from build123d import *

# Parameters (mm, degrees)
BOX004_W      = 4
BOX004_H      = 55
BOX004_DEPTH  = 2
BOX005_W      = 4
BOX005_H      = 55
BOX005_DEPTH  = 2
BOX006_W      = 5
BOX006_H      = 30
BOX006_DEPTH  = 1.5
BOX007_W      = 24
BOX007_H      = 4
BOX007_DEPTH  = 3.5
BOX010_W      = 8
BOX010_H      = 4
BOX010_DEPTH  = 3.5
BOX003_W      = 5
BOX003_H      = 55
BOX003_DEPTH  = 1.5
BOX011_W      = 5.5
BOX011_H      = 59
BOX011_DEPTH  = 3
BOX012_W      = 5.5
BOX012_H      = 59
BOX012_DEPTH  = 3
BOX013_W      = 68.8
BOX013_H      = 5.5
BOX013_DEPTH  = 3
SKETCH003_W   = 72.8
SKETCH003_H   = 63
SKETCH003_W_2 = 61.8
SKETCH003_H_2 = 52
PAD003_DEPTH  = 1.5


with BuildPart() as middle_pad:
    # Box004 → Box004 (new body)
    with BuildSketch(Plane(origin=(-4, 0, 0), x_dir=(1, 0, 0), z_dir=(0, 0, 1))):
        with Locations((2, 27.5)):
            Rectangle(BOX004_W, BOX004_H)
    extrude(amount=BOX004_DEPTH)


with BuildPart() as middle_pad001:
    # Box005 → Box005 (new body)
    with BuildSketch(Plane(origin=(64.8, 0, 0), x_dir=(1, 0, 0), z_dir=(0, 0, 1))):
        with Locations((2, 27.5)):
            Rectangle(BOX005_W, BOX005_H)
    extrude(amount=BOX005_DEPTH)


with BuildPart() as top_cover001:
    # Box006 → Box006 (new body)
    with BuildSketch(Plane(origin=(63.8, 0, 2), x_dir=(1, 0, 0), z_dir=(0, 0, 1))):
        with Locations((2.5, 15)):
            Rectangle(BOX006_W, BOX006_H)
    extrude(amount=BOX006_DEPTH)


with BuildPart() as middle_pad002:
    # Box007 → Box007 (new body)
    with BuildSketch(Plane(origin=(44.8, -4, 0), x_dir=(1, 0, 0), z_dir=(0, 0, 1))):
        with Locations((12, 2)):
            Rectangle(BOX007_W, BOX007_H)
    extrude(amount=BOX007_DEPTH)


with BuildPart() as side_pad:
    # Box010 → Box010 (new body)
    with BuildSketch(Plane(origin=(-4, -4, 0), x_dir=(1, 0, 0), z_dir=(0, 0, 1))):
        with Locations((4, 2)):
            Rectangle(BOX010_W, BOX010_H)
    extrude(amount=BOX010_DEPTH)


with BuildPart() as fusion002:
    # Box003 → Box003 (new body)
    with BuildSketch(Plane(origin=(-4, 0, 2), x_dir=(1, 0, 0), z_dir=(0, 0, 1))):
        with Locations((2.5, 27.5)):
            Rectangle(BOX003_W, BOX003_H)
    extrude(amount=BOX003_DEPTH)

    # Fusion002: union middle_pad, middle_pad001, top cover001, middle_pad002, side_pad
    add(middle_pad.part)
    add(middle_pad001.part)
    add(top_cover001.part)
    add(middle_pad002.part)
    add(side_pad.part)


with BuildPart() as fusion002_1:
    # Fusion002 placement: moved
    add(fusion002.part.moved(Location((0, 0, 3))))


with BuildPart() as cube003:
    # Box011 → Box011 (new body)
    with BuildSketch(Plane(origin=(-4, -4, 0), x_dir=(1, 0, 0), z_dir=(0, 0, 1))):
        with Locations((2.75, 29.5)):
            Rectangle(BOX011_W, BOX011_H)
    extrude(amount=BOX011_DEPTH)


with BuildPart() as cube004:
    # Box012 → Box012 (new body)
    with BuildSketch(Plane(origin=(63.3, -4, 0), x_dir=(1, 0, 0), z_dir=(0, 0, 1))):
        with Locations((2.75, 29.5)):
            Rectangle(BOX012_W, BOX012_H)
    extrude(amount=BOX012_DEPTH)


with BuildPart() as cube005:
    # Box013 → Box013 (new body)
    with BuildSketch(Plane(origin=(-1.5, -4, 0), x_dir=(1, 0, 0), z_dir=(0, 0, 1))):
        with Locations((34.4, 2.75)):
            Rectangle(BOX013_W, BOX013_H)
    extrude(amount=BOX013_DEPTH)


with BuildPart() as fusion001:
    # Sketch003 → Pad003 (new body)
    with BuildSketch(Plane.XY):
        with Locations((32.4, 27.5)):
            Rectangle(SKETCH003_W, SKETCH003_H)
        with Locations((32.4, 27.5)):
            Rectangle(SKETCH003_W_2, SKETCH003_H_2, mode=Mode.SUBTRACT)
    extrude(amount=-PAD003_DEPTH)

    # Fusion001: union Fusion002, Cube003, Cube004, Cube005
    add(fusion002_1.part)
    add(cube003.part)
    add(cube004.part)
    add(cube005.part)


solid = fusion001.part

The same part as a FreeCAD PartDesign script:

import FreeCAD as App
import Part
import Sketcher
from FreeCAD import Vector
Q = App.Units.Quantity

doc = App.newDocument("Part")
body = doc.addObject("PartDesign::Body", "Body")

sketch1 = body.newObject("Sketcher::SketchObject", "Sketch")
sketch1.AttachmentSupport = (doc.getObject("XY_Plane"), [""])
sketch1.MapMode = "FlatFace"
sketch1.addGeometry([
    Part.LineSegment(Vector(-4, 55, 0), Vector(-4, 0, 0)),
    Part.LineSegment(Vector(-4, 0, 0), Vector(0, 0, 0)),
    Part.LineSegment(Vector(0, 0, 0), Vector(0, 55, 0)),
    Part.LineSegment(Vector(0, 55, 0), Vector(-4, 55, 0)),
], False)
sketch1.addConstraint([
    Sketcher.Constraint("Coincident", 0, 2, 1, 1),
    Sketcher.Constraint("Coincident", 1, 2, 2, 1),
    Sketcher.Constraint("Coincident", 2, 2, 3, 1),
    Sketcher.Constraint("Coincident", 3, 2, 0, 1),
    Sketcher.Constraint("Vertical", 0),
    Sketcher.Constraint("Horizontal", 1),
    Sketcher.Constraint("Vertical", 2),
    Sketcher.Constraint("Horizontal", 3),
    Sketcher.Constraint("Coincident", 1, 2, -1, 1),
    Sketcher.Constraint("DistanceX", 1, 1, 1, 2, Q("4 mm")),
    Sketcher.Constraint("DistanceY", 0, 2, 0, 1, Q("55 mm")),
])
pad1 = body.newObject("PartDesign::Pad", "Pad")
pad1.Profile = sketch1
pad1.Length = 2
body2 = doc.addObject("PartDesign::Body", "Body001")

sketch2 = body2.newObject("Sketcher::SketchObject", "Sketch001")
sketch2.AttachmentSupport = (doc.getObject("XY_Plane001"), [""])
sketch2.MapMode = "FlatFace"
sketch2.addGeometry([
    Part.LineSegment(Vector(64.8, 55, 0), Vector(64.8, 0, 0)),
    Part.LineSegment(Vector(64.8, 0, 0), Vector(68.8, 0, 0)),
    Part.LineSegment(Vector(68.8, 0, 0), Vector(68.8, 55, 0)),
    Part.LineSegment(Vector(68.8, 55, 0), Vector(64.8, 55, 0)),
], False)
sketch2.addConstraint([
    Sketcher.Constraint("Coincident", 0, 2, 1, 1),
    Sketcher.Constraint("Coincident", 1, 2, 2, 1),
    Sketcher.Constraint("Coincident", 2, 2, 3, 1),
    Sketcher.Constraint("Coincident", 3, 2, 0, 1),
    Sketcher.Constraint("Vertical", 0),
    Sketcher.Constraint("Horizontal", 1),
    Sketcher.Constraint("Vertical", 2),
    Sketcher.Constraint("Horizontal", 3),
    Sketcher.Constraint("PointOnObject", 0, 2, -1),
    Sketcher.Constraint("DistanceX", 1, 1, 1, 2, Q("4 mm")),
    Sketcher.Constraint("DistanceY", 0, 2, 0, 1, Q("55 mm")),
    Sketcher.Constraint("DistanceX", -1, 1, 0, 2, Q("64.8 mm")),
])
pad2 = body2.newObject("PartDesign::Pad", "Pad001")
pad2.Profile = sketch2
pad2.Length = 2
body3 = doc.addObject("PartDesign::Body", "Body002")

sketch3 = body3.newObject("Sketcher::SketchObject", "Sketch002")
sketch3.AttachmentSupport = (doc.getObject("XY_Plane002"), [""])
sketch3.MapMode = "FlatFace"
sketch3.AttachmentOffset = App.Placement(Vector(0, 0, 2), App.Rotation())
sketch3.addGeometry([
    Part.LineSegment(Vector(64, 30, 0), Vector(64, 0, 0)),
    Part.LineSegment(Vector(64, 0, 0), Vector(69, 0, 0)),
    Part.LineSegment(Vector(69, 0, 0), Vector(69, 30, 0)),
    Part.LineSegment(Vector(69, 30, 0), Vector(64, 30, 0)),
], False)
sketch3.addConstraint([
    Sketcher.Constraint("Coincident", 0, 2, 1, 1),
    Sketcher.Constraint("Coincident", 1, 2, 2, 1),
    Sketcher.Constraint("Coincident", 2, 2, 3, 1),
    Sketcher.Constraint("Coincident", 3, 2, 0, 1),
    Sketcher.Constraint("Vertical", 0),
    Sketcher.Constraint("Horizontal", 1),
    Sketcher.Constraint("Vertical", 2),
    Sketcher.Constraint("Horizontal", 3),
    Sketcher.Constraint("PointOnObject", 0, 2, -1),
    Sketcher.Constraint("DistanceX", 1, 1, 1, 2, Q("5 mm")),
    Sketcher.Constraint("DistanceY", 0, 2, 0, 1, Q("30 mm")),
    Sketcher.Constraint("DistanceX", -1, 1, 0, 2, Q("63.8 mm")),
])
pad3 = body3.newObject("PartDesign::Pad", "Pad002")
pad3.Profile = sketch3
pad3.Length = 1.5
body4 = doc.addObject("PartDesign::Body", "Body003")

sketch4 = body4.newObject("Sketcher::SketchObject", "Sketch003")
sketch4.AttachmentSupport = (doc.getObject("XY_Plane003"), [""])
sketch4.MapMode = "FlatFace"
sketch4.addGeometry([
    Part.LineSegment(Vector(44.8, 0, 0), Vector(44.8, -4, 0)),
    Part.LineSegment(Vector(44.8, -4, 0), Vector(68.8, -4, 0)),
    Part.LineSegment(Vector(68.8, -4, 0), Vector(68.8, 0, 0)),
    Part.LineSegment(Vector(68.8, 0, 0), Vector(44.8, 0, 0)),
], False)
sketch4.addConstraint([
    Sketcher.Constraint("Coincident", 0, 2, 1, 1),
    Sketcher.Constraint("Coincident", 1, 2, 2, 1),
    Sketcher.Constraint("Coincident", 2, 2, 3, 1),
    Sketcher.Constraint("Coincident", 3, 2, 0, 1),
    Sketcher.Constraint("Vertical", 0),
    Sketcher.Constraint("Horizontal", 1),
    Sketcher.Constraint("Vertical", 2),
    Sketcher.Constraint("Horizontal", 3),
    Sketcher.Constraint("PointOnObject", 2, 2, -1),
    Sketcher.Constraint("DistanceX", 1, 1, 1, 2, Q("24 mm")),
    Sketcher.Constraint("DistanceY", 0, 2, 0, 1, Q("4 mm")),
    Sketcher.Constraint("DistanceX", -1, 1, 0, 2, Q("44.8 mm")),
])
pad4 = body4.newObject("PartDesign::Pad", "Pad003")
pad4.Profile = sketch4
pad4.Length = 3.5
body5 = doc.addObject("PartDesign::Body", "Body004")

sketch5 = body5.newObject("Sketcher::SketchObject", "Sketch004")
sketch5.AttachmentSupport = (doc.getObject("XY_Plane004"), [""])
sketch5.MapMode = "FlatFace"
sketch5.addGeometry([
    Part.LineSegment(Vector(-4, 0, 0), Vector(-4, -4, 0)),
    Part.LineSegment(Vector(-4, -4, 0), Vector(4, -4, 0)),
    Part.LineSegment(Vector(4, -4, 0), Vector(4, 0, 0)),
    Part.LineSegment(Vector(4, 0, 0), Vector(-4, 0, 0)),
], False)
sketch5.addConstraint([
    Sketcher.Constraint("Coincident", 0, 2, 1, 1),
    Sketcher.Constraint("Coincident", 1, 2, 2, 1),
    Sketcher.Constraint("Coincident", 2, 2, 3, 1),
    Sketcher.Constraint("Coincident", 3, 2, 0, 1),
    Sketcher.Constraint("Vertical", 0),
    Sketcher.Constraint("Horizontal", 1),
    Sketcher.Constraint("Vertical", 2),
    Sketcher.Constraint("Horizontal", 3),
    Sketcher.Constraint("Symmetric", 2, 2, 3, 2, -1, 1),
    Sketcher.Constraint("DistanceX", 1, 1, 1, 2, Q("8 mm")),
    Sketcher.Constraint("DistanceY", 0, 2, 0, 1, Q("4 mm")),
])
pad5 = body5.newObject("PartDesign::Pad", "Pad004")
pad5.Profile = sketch5
pad5.Length = 3.5
body6 = doc.addObject("PartDesign::Body", "Body005")
body6.AllowCompound = True

sketch6 = body6.newObject("Sketcher::SketchObject", "Sketch005")
sketch6.AttachmentSupport = (doc.getObject("XY_Plane005"), [""])
sketch6.MapMode = "FlatFace"
sketch6.AttachmentOffset = App.Placement(Vector(0, 0, 2), App.Rotation())
sketch6.addGeometry([
    Part.LineSegment(Vector(-4, 55, 0), Vector(-4, 0, 0)),
    Part.LineSegment(Vector(-4, 0, 0), Vector(1, 0, 0)),
    Part.LineSegment(Vector(1, 0, 0), Vector(1, 55, 0)),
    Part.LineSegment(Vector(1, 55, 0), Vector(-4, 55, 0)),
], False)
sketch6.addConstraint([
    Sketcher.Constraint("Coincident", 0, 2, 1, 1),
    Sketcher.Constraint("Coincident", 1, 2, 2, 1),
    Sketcher.Constraint("Coincident", 2, 2, 3, 1),
    Sketcher.Constraint("Coincident", 3, 2, 0, 1),
    Sketcher.Constraint("Vertical", 0),
    Sketcher.Constraint("Horizontal", 1),
    Sketcher.Constraint("Vertical", 2),
    Sketcher.Constraint("Horizontal", 3),
    Sketcher.Constraint("PointOnObject", 0, 2, -1),
    Sketcher.Constraint("DistanceX", 1, 1, 1, 2, Q("5 mm")),
    Sketcher.Constraint("DistanceY", 0, 2, 0, 1, Q("55 mm")),
    Sketcher.Constraint("DistanceX", 0, 2, -1, 1, Q("4 mm")),
])
pad6 = body6.newObject("PartDesign::Pad", "Pad005")
pad6.Profile = sketch6
pad6.Length = 1.5
doc.recompute()

boolean = body6.newObject("PartDesign::Boolean", "Boolean")
boolean.Type = "Fuse"
boolean.addObjects([body])
doc.recompute()

boolean2 = body6.newObject("PartDesign::Boolean", "Boolean001")
boolean2.Type = "Fuse"
boolean2.addObjects([body2])
doc.recompute()

boolean3 = body6.newObject("PartDesign::Boolean", "Boolean002")
boolean3.Type = "Fuse"
boolean3.addObjects([body3])
doc.recompute()

boolean4 = body6.newObject("PartDesign::Boolean", "Boolean003")
boolean4.Type = "Fuse"
boolean4.addObjects([body4])
doc.recompute()

boolean5 = body6.newObject("PartDesign::Boolean", "Boolean004")
boolean5.Type = "Fuse"
boolean5.addObjects([body5])
body7 = doc.addObject("PartDesign::Body", "Body006")
body7.AllowCompound = True
doc.recompute()

body6.Placement = App.Placement(Vector(0, 0, 3), App.Rotation(Vector(0, 0, 1), 0))
boolean6 = body7.newObject("PartDesign::Boolean", "Boolean005")
boolean6.Type = "Fuse"
boolean6.addObjects([body6])
body8 = doc.addObject("PartDesign::Body", "Body007")

sketch7 = body8.newObject("Sketcher::SketchObject", "Sketch006")
sketch7.AttachmentSupport = (doc.getObject("XY_Plane007"), [""])
sketch7.MapMode = "FlatFace"
sketch7.addGeometry([
    Part.LineSegment(Vector(-4, 55, 0), Vector(-4, -4, 0)),
    Part.LineSegment(Vector(-4, -4, 0), Vector(2, -4, 0)),
    Part.LineSegment(Vector(2, -4, 0), Vector(2, 55, 0)),
    Part.LineSegment(Vector(2, 55, 0), Vector(-4, 55, 0)),
], False)
sketch7.addConstraint([
    Sketcher.Constraint("Coincident", 0, 2, 1, 1),
    Sketcher.Constraint("Coincident", 1, 2, 2, 1),
    Sketcher.Constraint("Coincident", 2, 2, 3, 1),
    Sketcher.Constraint("Coincident", 3, 2, 0, 1),
    Sketcher.Constraint("Vertical", 0),
    Sketcher.Constraint("Horizontal", 1),
    Sketcher.Constraint("Vertical", 2),
    Sketcher.Constraint("Horizontal", 3),
    Sketcher.Constraint("DistanceY", 0, 2, 0, 1, Q("59 mm")),
    Sketcher.Constraint("DistanceX", 1, 1, 1, 2, Q("5.5 mm")),
    Sketcher.Constraint("DistanceX", 0, 2, -1, 1, Q("4 mm")),
    Sketcher.Constraint("DistanceY", 0, 2, -1, 1, Q("4 mm")),
])
pad7 = body8.newObject("PartDesign::Pad", "Pad006")
pad7.Profile = sketch7
pad7.Length = 3
body9 = doc.addObject("PartDesign::Body", "Body008")

sketch8 = body9.newObject("Sketcher::SketchObject", "Sketch007")
sketch8.AttachmentSupport = (doc.getObject("XY_Plane008"), [""])
sketch8.MapMode = "FlatFace"
sketch8.addGeometry([
    Part.LineSegment(Vector(63, 55, 0), Vector(63, -4, 0)),
    Part.LineSegment(Vector(63, -4, 0), Vector(69, -4, 0)),
    Part.LineSegment(Vector(69, -4, 0), Vector(69, 55, 0)),
    Part.LineSegment(Vector(69, 55, 0), Vector(63, 55, 0)),
], False)
sketch8.addConstraint([
    Sketcher.Constraint("Coincident", 0, 2, 1, 1),
    Sketcher.Constraint("Coincident", 1, 2, 2, 1),
    Sketcher.Constraint("Coincident", 2, 2, 3, 1),
    Sketcher.Constraint("Coincident", 3, 2, 0, 1),
    Sketcher.Constraint("Vertical", 0),
    Sketcher.Constraint("Horizontal", 1),
    Sketcher.Constraint("Vertical", 2),
    Sketcher.Constraint("Horizontal", 3),
    Sketcher.Constraint("DistanceY", 0, 2, 0, 1, Q("59 mm")),
    Sketcher.Constraint("DistanceX", 1, 1, 1, 2, Q("5.5 mm")),
    Sketcher.Constraint("DistanceY", 0, 2, -1, 1, Q("4 mm")),
    Sketcher.Constraint("DistanceX", -1, 1, 0, 2, Q("63.3 mm")),
])
pad8 = body9.newObject("PartDesign::Pad", "Pad007")
pad8.Profile = sketch8
pad8.Length = 3
body10 = doc.addObject("PartDesign::Body", "Body009")

sketch9 = body10.newObject("Sketcher::SketchObject", "Sketch008")
sketch9.AttachmentSupport = (doc.getObject("XY_Plane009"), [""])
sketch9.MapMode = "FlatFace"
sketch9.addGeometry([
    Part.LineSegment(Vector(-2, 2, 0), Vector(-2, -4, 0)),
    Part.LineSegment(Vector(-2, -4, 0), Vector(67, -4, 0)),
    Part.LineSegment(Vector(67, -4, 0), Vector(67, 2, 0)),
    Part.LineSegment(Vector(67, 2, 0), Vector(-2, 2, 0)),
], False)
sketch9.addConstraint([
    Sketcher.Constraint("Coincident", 0, 2, 1, 1),
    Sketcher.Constraint("Coincident", 1, 2, 2, 1),
    Sketcher.Constraint("Coincident", 2, 2, 3, 1),
    Sketcher.Constraint("Coincident", 3, 2, 0, 1),
    Sketcher.Constraint("Vertical", 0),
    Sketcher.Constraint("Horizontal", 1),
    Sketcher.Constraint("Vertical", 2),
    Sketcher.Constraint("Horizontal", 3),
    Sketcher.Constraint("DistanceX", 1, 1, 1, 2, Q("68.8 mm")),
    Sketcher.Constraint("DistanceY", 0, 2, 0, 1, Q("5.5 mm")),
    Sketcher.Constraint("DistanceY", 0, 2, -1, 1, Q("4 mm")),
    Sketcher.Constraint("DistanceX", 0, 2, -1, 1, Q("1.5 mm")),
])
pad9 = body10.newObject("PartDesign::Pad", "Pad008")
pad9.Profile = sketch9
pad9.Length = 3
body11 = doc.addObject("PartDesign::Body", "Body010")
body11.AllowCompound = True

sketch10 = body11.newObject("Sketcher::SketchObject", "Sketch009")
sketch10.AttachmentSupport = (doc.getObject("XY_Plane010"), [""])
sketch10.MapMode = "FlatFace"
sketch10.addGeometry([
    Part.LineSegment(Vector(-4, 59, 0), Vector(-4, -4, 0)),
    Part.LineSegment(Vector(-4, -4, 0), Vector(69, -4, 0)),
    Part.LineSegment(Vector(69, -4, 0), Vector(69, 59, 0)),
    Part.LineSegment(Vector(69, 59, 0), Vector(-4, 59, 0)),
    Part.LineSegment(Vector(63, 2, 0), Vector(2, 2, 0)),
    Part.LineSegment(Vector(2, 2, 0), Vector(2, 54, 0)),
    Part.LineSegment(Vector(2, 54, 0), Vector(63, 54, 0)),
    Part.LineSegment(Vector(63, 54, 0), Vector(63, 2, 0)),
], False)
sketch10.addConstraint([
    Sketcher.Constraint("Coincident", 0, 2, 1, 1),
    Sketcher.Constraint("Coincident", 1, 2, 2, 1),
    Sketcher.Constraint("Coincident", 2, 2, 3, 1),
    Sketcher.Constraint("Coincident", 3, 2, 0, 1),
    Sketcher.Constraint("Coincident", 4, 2, 5, 1),
    Sketcher.Constraint("Coincident", 5, 2, 6, 1),
    Sketcher.Constraint("Coincident", 6, 2, 7, 1),
    Sketcher.Constraint("Coincident", 7, 2, 4, 1),
    Sketcher.Constraint("Vertical", 0),
    Sketcher.Constraint("Horizontal", 1),
    Sketcher.Constraint("Vertical", 2),
    Sketcher.Constraint("Horizontal", 3),
    Sketcher.Constraint("Horizontal", 4),
    Sketcher.Constraint("Vertical", 5),
    Sketcher.Constraint("Horizontal", 6),
    Sketcher.Constraint("Vertical", 7),
    Sketcher.Constraint("DistanceY", 0, 2, 0, 1, Q("63 mm")),
    Sketcher.Constraint("DistanceY", 5, 1, 5, 2, Q("52 mm")),
    Sketcher.Constraint("DistanceX", 1, 1, 1, 2, Q("72.8 mm")),
    Sketcher.Constraint("DistanceX", 4, 2, 4, 1, Q("61.8 mm")),
    Sketcher.Constraint("DistanceX", 0, 2, -1, 1, Q("4 mm")),
    Sketcher.Constraint("DistanceY", 0, 2, -1, 1, Q("4 mm")),
    Sketcher.Constraint("DistanceX", -1, 1, 4, 2, Q("1.5 mm")),
    Sketcher.Constraint("DistanceY", -1, 1, 4, 2, Q("1.5 mm")),
])
pad10 = body11.newObject("PartDesign::Pad", "Pad009")
pad10.Profile = sketch10
pad10.Length = 1.5
pad10.Reversed = True
doc.recompute()

boolean7 = body11.newObject("PartDesign::Boolean", "Boolean006")
boolean7.Type = "Fuse"
boolean7.addObjects([body7])
doc.recompute()

boolean8 = body11.newObject("PartDesign::Boolean", "Boolean007")
boolean8.Type = "Fuse"
boolean8.addObjects([body8])
doc.recompute()

boolean9 = body11.newObject("PartDesign::Boolean", "Boolean008")
boolean9.Type = "Fuse"
boolean9.addObjects([body9])
doc.recompute()

boolean10 = body11.newObject("PartDesign::Boolean", "Boolean009")
boolean10.Type = "Fuse"
boolean10.addObjects([body10])

doc.recompute()
